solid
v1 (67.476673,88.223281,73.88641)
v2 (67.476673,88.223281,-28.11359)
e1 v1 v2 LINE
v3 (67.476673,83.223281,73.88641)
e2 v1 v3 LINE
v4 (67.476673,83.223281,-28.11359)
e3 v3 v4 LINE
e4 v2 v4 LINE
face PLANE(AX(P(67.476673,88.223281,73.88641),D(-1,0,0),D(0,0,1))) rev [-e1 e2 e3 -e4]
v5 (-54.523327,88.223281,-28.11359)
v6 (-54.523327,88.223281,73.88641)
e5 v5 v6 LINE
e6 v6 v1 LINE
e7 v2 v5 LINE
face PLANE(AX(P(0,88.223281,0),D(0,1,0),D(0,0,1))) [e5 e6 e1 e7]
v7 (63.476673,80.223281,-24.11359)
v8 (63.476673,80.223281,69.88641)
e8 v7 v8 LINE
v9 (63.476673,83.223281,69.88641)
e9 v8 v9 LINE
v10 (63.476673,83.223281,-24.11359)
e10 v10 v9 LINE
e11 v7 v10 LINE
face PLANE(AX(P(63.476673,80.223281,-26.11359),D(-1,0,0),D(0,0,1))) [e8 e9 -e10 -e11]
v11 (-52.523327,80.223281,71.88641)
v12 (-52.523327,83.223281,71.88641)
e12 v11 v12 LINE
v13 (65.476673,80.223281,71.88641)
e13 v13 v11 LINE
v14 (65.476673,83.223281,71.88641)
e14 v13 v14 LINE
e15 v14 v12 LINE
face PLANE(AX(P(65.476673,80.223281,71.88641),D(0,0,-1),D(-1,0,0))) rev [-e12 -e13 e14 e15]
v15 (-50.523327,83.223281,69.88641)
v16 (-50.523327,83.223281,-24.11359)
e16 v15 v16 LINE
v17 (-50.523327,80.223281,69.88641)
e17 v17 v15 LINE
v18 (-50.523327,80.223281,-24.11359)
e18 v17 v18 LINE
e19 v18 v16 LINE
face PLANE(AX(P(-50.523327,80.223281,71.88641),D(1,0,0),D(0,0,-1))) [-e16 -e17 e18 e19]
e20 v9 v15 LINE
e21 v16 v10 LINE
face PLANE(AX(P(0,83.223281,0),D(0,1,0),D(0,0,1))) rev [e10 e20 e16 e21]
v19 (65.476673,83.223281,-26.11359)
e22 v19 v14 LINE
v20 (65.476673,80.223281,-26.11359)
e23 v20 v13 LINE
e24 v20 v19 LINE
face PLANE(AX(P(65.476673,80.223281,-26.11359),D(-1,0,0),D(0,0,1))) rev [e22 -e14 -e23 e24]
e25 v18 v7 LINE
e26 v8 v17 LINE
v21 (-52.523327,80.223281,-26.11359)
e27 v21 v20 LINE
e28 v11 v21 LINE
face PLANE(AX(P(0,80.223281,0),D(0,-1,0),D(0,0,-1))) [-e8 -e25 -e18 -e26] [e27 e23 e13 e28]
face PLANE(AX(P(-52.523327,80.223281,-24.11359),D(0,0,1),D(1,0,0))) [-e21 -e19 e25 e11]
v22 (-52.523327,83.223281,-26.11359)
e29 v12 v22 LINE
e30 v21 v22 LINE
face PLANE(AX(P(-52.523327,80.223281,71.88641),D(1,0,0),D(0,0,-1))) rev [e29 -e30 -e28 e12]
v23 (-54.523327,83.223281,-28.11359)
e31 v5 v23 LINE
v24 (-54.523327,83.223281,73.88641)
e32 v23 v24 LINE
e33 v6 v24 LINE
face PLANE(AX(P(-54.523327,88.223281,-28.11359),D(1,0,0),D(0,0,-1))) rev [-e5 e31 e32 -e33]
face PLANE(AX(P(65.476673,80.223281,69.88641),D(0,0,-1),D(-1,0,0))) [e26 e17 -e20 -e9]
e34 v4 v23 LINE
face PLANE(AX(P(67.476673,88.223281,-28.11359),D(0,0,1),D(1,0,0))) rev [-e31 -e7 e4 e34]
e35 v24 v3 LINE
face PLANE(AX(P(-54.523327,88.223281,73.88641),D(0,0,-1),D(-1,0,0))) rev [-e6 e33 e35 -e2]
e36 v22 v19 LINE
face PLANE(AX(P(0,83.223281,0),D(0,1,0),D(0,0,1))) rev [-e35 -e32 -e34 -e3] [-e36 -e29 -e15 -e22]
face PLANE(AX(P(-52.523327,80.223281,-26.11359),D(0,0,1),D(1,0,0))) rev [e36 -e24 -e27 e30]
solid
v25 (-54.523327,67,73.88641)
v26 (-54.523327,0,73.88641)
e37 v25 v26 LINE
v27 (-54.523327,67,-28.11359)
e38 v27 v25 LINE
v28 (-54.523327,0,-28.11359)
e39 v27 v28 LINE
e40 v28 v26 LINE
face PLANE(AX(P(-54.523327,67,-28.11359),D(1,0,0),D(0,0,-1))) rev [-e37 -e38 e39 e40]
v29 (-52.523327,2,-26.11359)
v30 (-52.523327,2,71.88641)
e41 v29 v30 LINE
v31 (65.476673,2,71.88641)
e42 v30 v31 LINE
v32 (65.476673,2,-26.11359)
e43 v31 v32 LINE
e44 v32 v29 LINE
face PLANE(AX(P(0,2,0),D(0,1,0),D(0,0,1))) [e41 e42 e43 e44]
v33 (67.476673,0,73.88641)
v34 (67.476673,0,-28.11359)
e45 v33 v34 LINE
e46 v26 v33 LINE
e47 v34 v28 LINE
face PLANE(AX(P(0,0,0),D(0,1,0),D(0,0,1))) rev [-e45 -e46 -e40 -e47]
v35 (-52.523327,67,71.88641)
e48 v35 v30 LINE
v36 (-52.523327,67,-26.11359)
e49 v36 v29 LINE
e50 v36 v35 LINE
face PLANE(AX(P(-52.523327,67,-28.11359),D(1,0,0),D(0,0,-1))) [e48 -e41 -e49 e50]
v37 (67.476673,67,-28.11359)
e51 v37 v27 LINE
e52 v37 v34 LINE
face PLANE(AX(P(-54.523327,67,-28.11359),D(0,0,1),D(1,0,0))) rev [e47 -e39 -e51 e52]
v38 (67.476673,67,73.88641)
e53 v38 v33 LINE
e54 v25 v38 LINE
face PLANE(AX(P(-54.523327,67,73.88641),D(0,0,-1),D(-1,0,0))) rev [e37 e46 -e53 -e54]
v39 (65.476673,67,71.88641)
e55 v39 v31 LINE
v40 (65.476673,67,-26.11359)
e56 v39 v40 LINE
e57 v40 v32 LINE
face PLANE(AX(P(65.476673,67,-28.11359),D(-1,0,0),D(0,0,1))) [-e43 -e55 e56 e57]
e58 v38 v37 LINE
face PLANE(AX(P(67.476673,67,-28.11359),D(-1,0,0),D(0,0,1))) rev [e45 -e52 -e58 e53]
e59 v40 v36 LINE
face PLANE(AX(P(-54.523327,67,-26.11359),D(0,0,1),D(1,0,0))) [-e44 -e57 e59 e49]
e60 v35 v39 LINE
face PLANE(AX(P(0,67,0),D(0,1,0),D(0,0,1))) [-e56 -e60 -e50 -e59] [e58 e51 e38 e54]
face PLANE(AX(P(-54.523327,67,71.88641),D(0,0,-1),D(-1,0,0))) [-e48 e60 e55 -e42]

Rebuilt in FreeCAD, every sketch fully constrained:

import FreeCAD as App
import Part
import Sketcher
Q = App.Units.Quantity


def faces_at(feature, points):
    """Names of the faces that lie closest to the given points."""
    faces = feature.Shape.Faces
    near = lambda p: min(range(len(faces)), key=lambda i: faces[i].distToShape(Part.Vertex(*p))[0])
    return sorted({f"Face{near(p) + 1}" for p in points})

doc = App.newDocument("Part")
body = doc.addObject("PartDesign::Body", "Body")

# Sketch on XZ plane
sketch1 = doc.addObject("Sketcher::SketchObject", "Sketch")
body.addObject(sketch1)
sketch1.AttachmentSupport = (doc.XZ_Plane, [""])
sketch1.MapMode = "FlatFace"
sketch1.addGeometry(Part.LineSegment(App.Vector(-55, -28, 0), App.Vector(-55, 74, 0)), False)
sketch1.addGeometry(Part.LineSegment(App.Vector(-55, 74, 0), App.Vector(67, 74, 0)), False)
sketch1.addGeometry(Part.LineSegment(App.Vector(67, 74, 0), App.Vector(67, -28, 0)), False)
sketch1.addGeometry(Part.LineSegment(App.Vector(67, -28, 0), App.Vector(-55, -28, 0)), False)
sketch1.addConstraint(Sketcher.Constraint("Coincident", 0, 2, 1, 1))
sketch1.addConstraint(Sketcher.Constraint("Coincident", 1, 2, 2, 1))
sketch1.addConstraint(Sketcher.Constraint("Coincident", 2, 2, 3, 1))
sketch1.addConstraint(Sketcher.Constraint("Coincident", 3, 2, 0, 1))
sketch1.addConstraint(Sketcher.Constraint("Vertical", 0))
sketch1.addConstraint(Sketcher.Constraint("Horizontal", 1))
sketch1.addConstraint(Sketcher.Constraint("Vertical", 2))
sketch1.addConstraint(Sketcher.Constraint("Horizontal", 3))
sketch1.addConstraint(Sketcher.Constraint("DistanceX", 1, 1, 1, 2, Q("122 mm")))
sketch1.addConstraint(Sketcher.Constraint("DistanceY", 0, 1, 0, 2, Q("102 mm")))
sketch1.addConstraint(Sketcher.Constraint("DistanceY", -1, 1, 0, 2, Q("73.88641 mm")))
sketch1.addConstraint(Sketcher.Constraint("DistanceX", 0, 2, -1, 1, Q("54.523327 mm")))
pad1 = doc.addObject("PartDesign::Pad", "Pad")
body.addObject(pad1)
pad1.Profile = sketch1
pad1.Length = 67
pad1.Reversed = True
doc.recompute()

thickness = doc.addObject("PartDesign::Thickness", "Thickness")
body.addObject(thickness)
thickness.Base = (pad1, faces_at(pad1, [(6.477, 67, 22.886)]))
thickness.Value = 2
thickness.Reversed = True
thickness.Join = "Intersection"
body2 = doc.addObject("PartDesign::Body", "Body001")

# Sketch on XZ plane
sketch2 = doc.addObject("Sketcher::SketchObject", "Sketch001")
body2.addObject(sketch2)
sketch2.AttachmentSupport = (doc.getObject("XZ_Plane001"), [""])
sketch2.MapMode = "FlatFace"
sketch2.AttachmentOffset = App.Placement(App.Vector(0, 0, -67), App.Rotation())
sketch2.addGeometry(Part.LineSegment(App.Vector(-55, -28, 0), App.Vector(-55, 74, 0)), False)
sketch2.addGeometry(Part.LineSegment(App.Vector(-55, 74, 0), App.Vector(67, 74, 0)), False)
sketch2.addGeometry(Part.LineSegment(App.Vector(67, 74, 0), App.Vector(67, -28, 0)), False)
sketch2.addGeometry(Part.LineSegment(App.Vector(67, -28, 0), App.Vector(-55, -28, 0)), False)
sketch2.addConstraint(Sketcher.Constraint("Coincident", 0, 2, 1, 1))
sketch2.addConstraint(Sketcher.Constraint("Coincident", 1, 2, 2, 1))
sketch2.addConstraint(Sketcher.Constraint("Coincident", 2, 2, 3, 1))
sketch2.addConstraint(Sketcher.Constraint("Coincident", 3, 2, 0, 1))
sketch2.addConstraint(Sketcher.Constraint("Vertical", 0))
sketch2.addConstraint(Sketcher.Constraint("Horizontal", 1))
sketch2.addConstraint(Sketcher.Constraint("Vertical", 2))
sketch2.addConstraint(Sketcher.Constraint("Horizontal", 3))
sketch2.addConstraint(Sketcher.Constraint("DistanceX", 1, 1, 1, 2, Q("122 mm")))
sketch2.addConstraint(Sketcher.Constraint("DistanceY", 0, 1, 0, 2, Q("102 mm")))
sketch2.addConstraint(Sketcher.Constraint("DistanceY", -1, 1, 0, 2, Q("73.88641 mm")))
sketch2.addConstraint(Sketcher.Constraint("DistanceX", 0, 2, -1, 1, Q("54.523327 mm")))
pad2 = doc.addObject("PartDesign::Pad", "Pad001")
body2.addObject(pad2)
pad2.Profile = sketch2
pad2.Length = 5
pad2.Reversed = True

# Sketch on XZ plane
sketch3 = doc.addObject("Sketcher::SketchObject", "Sketch002")
body2.addObject(sketch3)
sketch3.AttachmentSupport = (doc.getObject("XZ_Plane001"), [""])
sketch3.MapMode = "FlatFace"
sketch3.AttachmentOffset = App.Placement(App.Vector(0, 0, -67), App.Rotation())
sketch3.addGeometry(Part.LineSegment(App.Vector(-53, 72, 0), App.Vector(-53, -26, 0)), False)
sketch3.addGeometry(Part.LineSegment(App.Vector(-53, -26, 0), App.Vector(65, -26, 0)), False)
sketch3.addGeometry(Part.LineSegment(App.Vector(65, -26, 0), App.Vector(65, 72, 0)), False)
sketch3.addGeometry(Part.LineSegment(App.Vector(65, 72, 0), App.Vector(-53, 72, 0)), False)
sketch3.addGeometry(Part.LineSegment(App.Vector(63, -24, 0), App.Vector(-51, -24, 0)), False)
sketch3.addGeometry(Part.LineSegment(App.Vector(-51, -24, 0), App.Vector(-51, 70, 0)), False)
sketch3.addGeometry(Part.LineSegment(App.Vector(-51, 70, 0), App.Vector(63, 70, 0)), False)
sketch3.addGeometry(Part.LineSegment(App.Vector(63, 70, 0), App.Vector(63, -24, 0)), False)
sketch3.addConstraint(Sketcher.Constraint("Coincident", 0, 2, 1, 1))
sketch3.addConstraint(Sketcher.Constraint("Coincident", 1, 2, 2, 1))
sketch3.addConstraint(Sketcher.Constraint("Coincident", 2, 2, 3, 1))
sketch3.addConstraint(Sketcher.Constraint("Coincident", 3, 2, 0, 1))
sketch3.addConstraint(Sketcher.Constraint("Coincident", 4, 2, 5, 1))
sketch3.addConstraint(Sketcher.Constraint("Coincident", 5, 2, 6, 1))
sketch3.addConstraint(Sketcher.Constraint("Coincident", 6, 2, 7, 1))
sketch3.addConstraint(Sketcher.Constraint("Coincident", 7, 2, 4, 1))
sketch3.addConstraint(Sketcher.Constraint("Vertical", 0))
sketch3.addConstraint(Sketcher.Constraint("Horizontal", 1))
sketch3.addConstraint(Sketcher.Constraint("Vertical", 2))
sketch3.addConstraint(Sketcher.Constraint("Horizontal", 3))
sketch3.addConstraint(Sketcher.Constraint("Horizontal", 4))
sketch3.addConstraint(Sketcher.Constraint("Vertical", 5))
sketch3.addConstraint(Sketcher.Constraint("Horizontal", 6))
sketch3.addConstraint(Sketcher.Constraint("Vertical", 7))
sketch3.addConstraint(Sketcher.Constraint("DistanceX", 1, 1, 1, 2, Q("118 mm")))
sketch3.addConstraint(Sketcher.Constraint("DistanceX", 4, 2, 4, 1, Q("114 mm")))
sketch3.addConstraint(Sketcher.Constraint("DistanceY", 0, 2, 0, 1, Q("98 mm")))
sketch3.addConstraint(Sketcher.Constraint("DistanceY", 5, 1, 5, 2, Q("94 mm")))
sketch3.addConstraint(Sketcher.Constraint("DistanceX", 0, 2, 4, 2, Q("2 mm")))
sketch3.addConstraint(Sketcher.Constraint("DistanceY", 0, 2, 4, 2, Q("2 mm")))
sketch3.addConstraint(Sketcher.Constraint("DistanceY", 0, 2, -1, 1, Q("26.11359 mm")))
sketch3.addConstraint(Sketcher.Constraint("DistanceX", 0, 2, -1, 1, Q("52.523327 mm")))
pad3 = doc.addObject("PartDesign::Pad", "Pad002")
body2.addObject(pad3)
pad3.Profile = sketch3
pad3.Length = 3
body3 = doc.addObject("PartDesign::Body", "Body002")
doc.recompute()

body2.Placement = App.Placement(App.Vector(0, 16.223281, 0), App.Rotation(App.Vector(0, 0, 1), 0))
boolean = doc.addObject("PartDesign::Boolean", "Boolean")
body3.addObject(boolean)
boolean.Type = "Fuse"
boolean.addObjects([body2])

doc.recompute()
